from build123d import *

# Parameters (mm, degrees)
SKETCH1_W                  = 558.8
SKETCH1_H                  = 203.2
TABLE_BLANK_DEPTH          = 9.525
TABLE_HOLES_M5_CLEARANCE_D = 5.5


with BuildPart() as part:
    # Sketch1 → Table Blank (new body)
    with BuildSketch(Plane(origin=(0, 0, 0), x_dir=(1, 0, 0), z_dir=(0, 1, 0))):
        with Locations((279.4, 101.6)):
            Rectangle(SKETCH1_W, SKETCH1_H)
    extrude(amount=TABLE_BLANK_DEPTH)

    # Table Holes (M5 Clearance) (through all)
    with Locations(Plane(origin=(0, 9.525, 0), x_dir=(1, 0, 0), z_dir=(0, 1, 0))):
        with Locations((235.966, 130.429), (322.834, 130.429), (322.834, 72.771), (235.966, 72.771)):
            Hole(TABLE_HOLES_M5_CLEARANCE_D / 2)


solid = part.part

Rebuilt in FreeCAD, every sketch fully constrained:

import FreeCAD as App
import Part
import Sketcher
from FreeCAD import Vector
Q = App.Units.Quantity

doc = App.newDocument("Part")
params = doc.addObject("Spreadsheet::Sheet", "Params")
for row, (alias, value) in enumerate([
    ("sketch1_width", "22 in"),
    ("sketch1_height", "8 in"),
    ("pad1_length", "0.375 in"),
    ("hole_diameter", "5.5 mm"),
], start=1):
    params.set(f"A{row}", alias)
    params.set(f"B{row}", "=" + value)
    params.setAlias(f"B{row}", alias)

body = doc.addObject("PartDesign::Body", "Body")

sketch1 = doc.addObject("Sketcher::SketchObject", "Sketch")
body.addObject(sketch1)
sketch1.AttachmentSupport = (doc.XZ_Plane, [""])
sketch1.MapMode = "FlatFace"
sketch1.addGeometry(Part.LineSegment(Vector(0, -203, 0), Vector(0, 0, 0)), False)
sketch1.addGeometry(Part.LineSegment(Vector(0, 0, 0), Vector(559, 0, 0)), False)
sketch1.addGeometry(Part.LineSegment(Vector(559, 0, 0), Vector(559, -203, 0)), False)
sketch1.addGeometry(Part.LineSegment(Vector(559, -203, 0), Vector(0, -203, 0)), False)
sketch1.addConstraint(Sketcher.Constraint("Coincident", 0, 2, 1, 1))
sketch1.addConstraint(Sketcher.Constraint("Coincident", 1, 2, 2, 1))
sketch1.addConstraint(Sketcher.Constraint("Coincident", 2, 2, 3, 1))
sketch1.addConstraint(Sketcher.Constraint("Coincident", 3, 2, 0, 1))
sketch1.addConstraint(Sketcher.Constraint("Vertical", 0))
sketch1.addConstraint(Sketcher.Constraint("Horizontal", 1))
sketch1.addConstraint(Sketcher.Constraint("Vertical", 2))
sketch1.addConstraint(Sketcher.Constraint("Horizontal", 3))
sketch1.addConstraint(Sketcher.Constraint("Coincident", 0, 2, -1, 1))
sketch1.addConstraint(Sketcher.Constraint("DistanceX", 1, 1, 1, 2, Q("22 in")))
sketch1.addConstraint(Sketcher.Constraint("DistanceY", 0, 1, 0, 2, Q("8 in")))
sketch1.setExpression("Constraints[9]", "Params.sketch1_width")
sketch1.setExpression("Constraints[10]", "Params.sketch1_height")
pad1 = doc.addObject("PartDesign::Pad", "Pad")
body.addObject(pad1)
pad1.Profile = sketch1
pad1.setExpression("Length", "Params.pad1_length")
pad1.Reversed = True

sketch2 = doc.addObject("Sketcher::SketchObject", "Sketch001")
body.addObject(sketch2)
sketch2.AttachmentSupport = (doc.XZ_Plane, [""])
sketch2.MapMode = "FlatFace"
sketch2.AttachmentOffset = App.Placement(Vector(0, 0, -0.375 * 25.4), App.Rotation())
sketch2.addGeometry(Part.Circle(Vector(236, -130.4, 0), Vector(0, 0, 1), 2.8), False)
sketch2.addGeometry(Part.Circle(Vector(322.8, -130.4, 0), Vector(0, 0, 1), 2.8), False)
sketch2.addGeometry(Part.Circle(Vector(322.8, -72.8, 0), Vector(0, 0, 1), 2.8), False)
sketch2.addGeometry(Part.Circle(Vector(236, -72.8, 0), Vector(0, 0, 1), 2.8), False)
sketch2.addConstraint(Sketcher.Constraint("Equal", 0, 1))
sketch2.addConstraint(Sketcher.Constraint("Equal", 1, 2))
sketch2.addConstraint(Sketcher.Constraint("Equal", 2, 3))
sketch2.addConstraint(Sketcher.Constraint("Horizontal", 0, 3, 1, 3))
sketch2.addConstraint(Sketcher.Constraint("Horizontal", 2, 3, 3, 3))
sketch2.addConstraint(Sketcher.Constraint("Vertical", 1, 3, 2, 3))
sketch2.addConstraint(Sketcher.Constraint("Vertical", 0, 3, 3, 3))
sketch2.addConstraint(Sketcher.Constraint("Diameter", 0, 5.5))
sketch2.addConstraint(Sketcher.Constraint("DistanceX", -1, 1, 0, 3, Q("9.29 in")))
sketch2.addConstraint(Sketcher.Constraint("DistanceX", -1, 1, 1, 3, Q("12.71 in")))
sketch2.addConstraint(Sketcher.Constraint("DistanceY", 1, 3, 2, 3, Q("2.27 in")))
sketch2.addConstraint(Sketcher.Constraint("DistanceY", 0, 3, -1, 1, Q("5.135 in")))
doc.recompute()
hole = doc.addObject("PartDesign::Hole", "Hole")
body.addObject(hole)
hole.Profile = sketch2
hole.ThreadType = "None"
hole.setExpression("Diameter", "Params.hole_diameter")
hole.DepthType = "ThroughAll"
hole.Reversed = True

doc.recompute()
